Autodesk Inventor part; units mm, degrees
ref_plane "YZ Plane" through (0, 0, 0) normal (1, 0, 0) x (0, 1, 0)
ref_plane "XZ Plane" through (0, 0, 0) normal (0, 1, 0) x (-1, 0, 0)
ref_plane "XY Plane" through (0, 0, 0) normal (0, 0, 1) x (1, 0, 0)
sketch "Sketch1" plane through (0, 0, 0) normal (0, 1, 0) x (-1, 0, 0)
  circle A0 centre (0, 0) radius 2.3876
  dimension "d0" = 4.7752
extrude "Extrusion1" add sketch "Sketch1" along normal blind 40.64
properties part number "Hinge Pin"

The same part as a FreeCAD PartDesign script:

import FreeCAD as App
import Part
import Sketcher
Q = App.Units.Quantity

doc = App.newDocument("Part")
body = doc.addObject("PartDesign::Body", "Body")

sketch1 = body.newObject("Sketcher::SketchObject", "Sketch")
sketch1.AttachmentSupport = (doc.getObject("XZ_Plane"), [""])
sketch1.MapMode = "FlatFace"
sketch1.addGeometry(Part.Circle(App.Vector(0, 0, 0), App.Vector(0, 0, 1), 2.3876), False)
sketch1.addConstraint([
    Sketcher.Constraint("Coincident", 0, 3, -1, 1),
    Sketcher.Constraint("Diameter", 0, Q("0.188 in")),
])
pad1 = body.newObject("PartDesign::Pad", "Pad")
pad1.Profile = sketch1
pad1.Length = Q("1.6 in")
pad1.Reversed = True

doc.recompute()
